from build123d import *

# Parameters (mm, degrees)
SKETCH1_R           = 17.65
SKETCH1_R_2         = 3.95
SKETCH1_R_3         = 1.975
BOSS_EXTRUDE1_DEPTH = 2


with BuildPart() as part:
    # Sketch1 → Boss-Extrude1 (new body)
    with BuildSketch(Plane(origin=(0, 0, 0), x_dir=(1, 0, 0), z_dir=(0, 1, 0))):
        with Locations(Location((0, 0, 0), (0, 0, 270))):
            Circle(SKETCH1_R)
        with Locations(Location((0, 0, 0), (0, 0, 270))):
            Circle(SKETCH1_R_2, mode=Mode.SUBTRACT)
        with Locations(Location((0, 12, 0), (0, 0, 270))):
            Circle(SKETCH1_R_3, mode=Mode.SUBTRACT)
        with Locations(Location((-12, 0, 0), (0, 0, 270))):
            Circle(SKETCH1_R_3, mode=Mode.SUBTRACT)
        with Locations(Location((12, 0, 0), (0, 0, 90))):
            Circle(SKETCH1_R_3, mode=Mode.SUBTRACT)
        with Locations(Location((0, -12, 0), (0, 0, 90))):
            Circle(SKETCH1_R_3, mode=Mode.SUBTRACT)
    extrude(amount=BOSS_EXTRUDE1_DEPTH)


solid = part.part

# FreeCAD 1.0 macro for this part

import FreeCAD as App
import Part
import Sketcher
Q = App.Units.Quantity

doc = App.newDocument("Part")
body = doc.addObject("PartDesign::Body", "Body")

sketch1 = doc.addObject("Sketcher::SketchObject", "Sketch")
body.addObject(sketch1)
sketch1.AttachmentSupport = (doc.XZ_Plane, [""])
sketch1.MapMode = "FlatFace"
sketch1.addGeometry([
    Part.Circle(App.Vector(0, 0, 0), App.Vector(0, 0, 1), 17.6),
    Part.Circle(App.Vector(0, -12, 0), App.Vector(0, 0, 1), 2),
    Part.Circle(App.Vector(0, 0, 0), App.Vector(0, 0, 1), 4),
    Part.Circle(App.Vector(-12, 0, 0), App.Vector(0, 0, 1), 2),
    Part.Circle(App.Vector(12, 0, 0), App.Vector(0, 0, 1), 2),
    Part.Circle(App.Vector(0, 12, 0), App.Vector(0, 0, 1), 2),
], False)
sketch1.addConstraint([
    Sketcher.Constraint("Coincident", 0, 3, -1, 1),
    Sketcher.Constraint("Coincident", 2, 3, -1, 1),
    Sketcher.Constraint("Equal", 1, 3),
    Sketcher.Constraint("Equal", 3, 4),
    Sketcher.Constraint("Equal", 4, 5),
    Sketcher.Constraint("Symmetric", 3, 3, 4, 3, -1, 1),
    Sketcher.Constraint("Symmetric", 1, 3, 5, 3, -1, 1),
    Sketcher.Constraint("PointOnObject", 1, 3, -2),
    Sketcher.Constraint("PointOnObject", 3, 3, -1),
    Sketcher.Constraint("Diameter", 0, Q("35.3 mm")),
    Sketcher.Constraint("Diameter", 2, Q("7.9 mm")),
    Sketcher.Constraint("Diameter", 1, Q("3.95 mm")),
    Sketcher.Constraint("DistanceY", 1, 3, -1, 1, Q("12 mm")),
    Sketcher.Constraint("DistanceX", 3, 3, -1, 1, Q("12 mm")),
])
pad1 = doc.addObject("PartDesign::Pad", "Pad")
body.addObject(pad1)
pad1.Profile = sketch1
pad1.Length = 2
pad1.Reversed = True

doc.recompute()
